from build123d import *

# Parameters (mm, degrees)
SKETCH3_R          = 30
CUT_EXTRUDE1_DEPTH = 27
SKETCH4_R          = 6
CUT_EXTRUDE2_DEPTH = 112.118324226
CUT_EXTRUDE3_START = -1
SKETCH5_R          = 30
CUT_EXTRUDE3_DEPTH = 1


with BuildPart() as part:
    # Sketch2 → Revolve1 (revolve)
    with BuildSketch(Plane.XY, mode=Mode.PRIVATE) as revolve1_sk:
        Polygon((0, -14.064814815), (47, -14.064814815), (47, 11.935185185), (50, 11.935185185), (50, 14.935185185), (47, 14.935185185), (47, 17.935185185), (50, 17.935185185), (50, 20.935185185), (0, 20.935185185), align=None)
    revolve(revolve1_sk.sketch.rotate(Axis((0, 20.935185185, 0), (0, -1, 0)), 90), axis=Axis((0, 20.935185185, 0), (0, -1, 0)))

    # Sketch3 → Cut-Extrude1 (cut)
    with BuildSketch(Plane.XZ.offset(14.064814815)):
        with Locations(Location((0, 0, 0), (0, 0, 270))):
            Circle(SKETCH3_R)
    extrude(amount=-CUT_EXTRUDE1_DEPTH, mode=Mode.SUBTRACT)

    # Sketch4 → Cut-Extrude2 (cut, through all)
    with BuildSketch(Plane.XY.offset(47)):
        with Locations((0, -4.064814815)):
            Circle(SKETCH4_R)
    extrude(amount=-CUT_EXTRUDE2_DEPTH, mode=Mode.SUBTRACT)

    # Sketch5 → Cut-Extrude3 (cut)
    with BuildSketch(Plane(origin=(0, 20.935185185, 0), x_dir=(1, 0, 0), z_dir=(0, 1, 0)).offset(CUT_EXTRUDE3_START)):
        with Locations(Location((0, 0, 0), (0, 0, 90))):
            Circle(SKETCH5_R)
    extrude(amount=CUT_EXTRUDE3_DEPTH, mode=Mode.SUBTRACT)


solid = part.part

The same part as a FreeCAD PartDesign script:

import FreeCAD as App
import Part
import Sketcher

V = App.Vector
Q = App.Units.Quantity

doc = App.newDocument("Part")
body = doc.addObject("PartDesign::Body", "Body")

# Sketch on XY plane
sketch1 = doc.addObject("Sketcher::SketchObject", "Sketch")
body.addObject(sketch1)
sketch1.AttachmentSupport = (doc.XY_Plane, [""])
sketch1.MapMode = "FlatFace"
sketch1.addGeometry([
    Part.LineSegment(V(0, -14.1, 0), V(47, -14.1, 0)),  # 0
    Part.LineSegment(V(47, -14.1, 0), V(47, 11.9, 0)),  # 1
    Part.LineSegment(V(47, 11.9, 0), V(50, 11.9, 0)),  # 2
    Part.LineSegment(V(50, 11.9, 0), V(50, 14.9, 0)),  # 3
    Part.LineSegment(V(50, 14.9, 0), V(47, 14.9, 0)),  # 4
    Part.LineSegment(V(47, 14.9, 0), V(47, 17.9, 0)),  # 5
    Part.LineSegment(V(47, 17.9, 0), V(50, 17.9, 0)),  # 6
    Part.LineSegment(V(50, 17.9, 0), V(50, 20.9, 0)),  # 7
    Part.LineSegment(V(50, 20.9, 0), V(0, 20.9, 0)),  # 8
    Part.LineSegment(V(0, 20.9, 0), V(0, -14.1, 0)),  # 9
], False)
sketch1.addConstraint([
    Sketcher.Constraint("Coincident", 0, 2, 1, 1),
    Sketcher.Constraint("Coincident", 1, 2, 2, 1),
    Sketcher.Constraint("Coincident", 2, 2, 3, 1),
    Sketcher.Constraint("Coincident", 3, 2, 4, 1),
    Sketcher.Constraint("Coincident", 4, 2, 5, 1),
    Sketcher.Constraint("Coincident", 5, 2, 6, 1),
    Sketcher.Constraint("Coincident", 6, 2, 7, 1),
    Sketcher.Constraint("Coincident", 7, 2, 8, 1),
    Sketcher.Constraint("Coincident", 8, 2, 9, 1),
    Sketcher.Constraint("Coincident", 9, 2, 0, 1),
    Sketcher.Constraint("Horizontal", 0),
    Sketcher.Constraint("Vertical", 1),
    Sketcher.Constraint("Horizontal", 2),
    Sketcher.Constraint("Vertical", 3),
    Sketcher.Constraint("Horizontal", 4),
    Sketcher.Constraint("Vertical", 5),
    Sketcher.Constraint("Horizontal", 6),
    Sketcher.Constraint("Vertical", 7),
    Sketcher.Constraint("Horizontal", 8),
    Sketcher.Constraint("Vertical", 9),
    Sketcher.Constraint("PointOnObject", 8, 2, -2),
    Sketcher.Constraint("Vertical", 1, 2, 4, 2),
    Sketcher.Constraint("Vertical", 3, 2, 6, 2),
    Sketcher.Constraint("Equal", 6, 3),
    Sketcher.Constraint("Equal", 3, 5),
    Sketcher.Constraint("Equal", 5, 7),
    Sketcher.Constraint("DistanceX", 0, 1, 0, 2, Q("47 mm")),
    Sketcher.Constraint("DistanceX", 2, 1, 2, 2, Q("3 mm")),
    Sketcher.Constraint("DistanceY", 1, 1, 1, 2, Q("26 mm")),
    Sketcher.Constraint("DistanceY", 0, 2, -1, 1, Q("14.064815 mm")),
])
revolution = doc.addObject("PartDesign::Revolution", "Revolution")
body.addObject(revolution)
revolution.Profile = sketch1
revolution.ReferenceAxis = (sketch1, ["V_Axis"])
revolution.Angle = 360

# Sketch on XZ plane
sketch2 = doc.addObject("Sketcher::SketchObject", "Sketch001")
body.addObject(sketch2)
sketch2.AttachmentSupport = (doc.XZ_Plane, [""])
sketch2.MapMode = "FlatFace"
sketch2.AttachmentOffset = App.Placement(V(0, 0, 14.064815), App.Rotation())
sketch2.addGeometry(Part.Circle(V(0, 0, 0), V(0, 0, 1), 30), False)
sketch2.addConstraint([
    Sketcher.Constraint("Coincident", 0, 3, -1, 1),
    Sketcher.Constraint("Diameter", 0, Q("60 mm")),
])
pocket1 = doc.addObject("PartDesign::Pocket", "Pocket")
body.addObject(pocket1)
pocket1.Profile = sketch2
pocket1.Length = 27

# Sketch on XY plane
sketch3 = doc.addObject("Sketcher::SketchObject", "Sketch002")
body.addObject(sketch3)
sketch3.AttachmentSupport = (doc.XY_Plane, [""])
sketch3.MapMode = "FlatFace"
sketch3.AttachmentOffset = App.Placement(V(0, 0, 47), App.Rotation())
sketch3.addGeometry(Part.Circle(V(0, -4, 0), V(0, 0, 1), 6), False)
sketch3.addConstraint([
    Sketcher.Constraint("PointOnObject", 0, 3, -2),
    Sketcher.Constraint("Diameter", 0, Q("12 mm")),
    Sketcher.Constraint("DistanceY", 0, 3, -1, 1, Q("4.064815 mm")),
])
pocket2 = doc.addObject("PartDesign::Pocket", "Pocket001")
body.addObject(pocket2)
pocket2.Profile = sketch3
pocket2.Type = "ThroughAll"

# Sketch on XZ plane
sketch4 = doc.addObject("Sketcher::SketchObject", "Sketch003")
body.addObject(sketch4)
sketch4.AttachmentSupport = (doc.XZ_Plane, [""])
sketch4.MapMode = "FlatFace"
sketch4.AttachmentOffset = App.Placement(V(0, 0, -19.935185), App.Rotation())
sketch4.addGeometry(Part.Circle(V(0, 0, 0), V(0, 0, 1), 30), False)
sketch4.addConstraint([
    Sketcher.Constraint("Coincident", 0, 3, -1, 1),
    Sketcher.Constraint("Diameter", 0, Q("60 mm")),
])
pocket3 = doc.addObject("PartDesign::Pocket", "Pocket002")
body.addObject(pocket3)
pocket3.Profile = sketch4
pocket3.Length = 1

doc.recompute()
